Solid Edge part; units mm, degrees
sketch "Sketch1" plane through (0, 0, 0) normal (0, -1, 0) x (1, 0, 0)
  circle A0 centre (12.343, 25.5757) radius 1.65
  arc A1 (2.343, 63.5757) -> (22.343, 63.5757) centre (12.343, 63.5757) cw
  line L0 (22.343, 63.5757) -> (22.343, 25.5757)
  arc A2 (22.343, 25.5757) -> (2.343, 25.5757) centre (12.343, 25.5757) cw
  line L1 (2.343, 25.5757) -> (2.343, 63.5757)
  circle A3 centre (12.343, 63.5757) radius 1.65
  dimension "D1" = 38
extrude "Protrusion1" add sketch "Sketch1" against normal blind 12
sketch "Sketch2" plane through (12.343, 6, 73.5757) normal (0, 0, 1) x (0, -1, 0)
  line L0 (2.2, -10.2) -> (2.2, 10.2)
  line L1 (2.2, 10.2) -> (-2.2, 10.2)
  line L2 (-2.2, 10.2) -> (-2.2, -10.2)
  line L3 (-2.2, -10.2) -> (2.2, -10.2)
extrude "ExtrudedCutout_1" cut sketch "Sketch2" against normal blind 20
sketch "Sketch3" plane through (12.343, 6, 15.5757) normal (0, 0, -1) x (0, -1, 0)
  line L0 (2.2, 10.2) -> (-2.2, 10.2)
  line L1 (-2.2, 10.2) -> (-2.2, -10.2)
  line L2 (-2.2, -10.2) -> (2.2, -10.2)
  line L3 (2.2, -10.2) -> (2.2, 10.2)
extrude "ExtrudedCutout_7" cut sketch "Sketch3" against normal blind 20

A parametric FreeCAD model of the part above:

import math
import FreeCAD as App
import Part
import Sketcher
from FreeCAD import Vector

doc = App.newDocument("Part")
body = doc.addObject("PartDesign::Body", "Body")

sketch1 = body.newObject("Sketcher::SketchObject", "Sketch")
sketch1.AttachmentSupport = (doc.getObject("XZ_Plane"), [""])
sketch1.MapMode = "FlatFace"
sketch1.addGeometry([
    Part.ArcOfCircle(Part.Circle(Vector(12.3, 63.6, 0), Vector(0, 0, 1), 10), math.radians(0), math.radians(180)),
    Part.LineSegment(Vector(2.3, 63.6, 0), Vector(2.3, 25.6, 0)),
    Part.ArcOfCircle(Part.Circle(Vector(12.3, 25.6, 0), Vector(0, 0, 1), 10), math.radians(180), math.radians(360)),
    Part.LineSegment(Vector(22.3, 25.6, 0), Vector(22.3, 63.6, 0)),
    Part.Circle(Vector(12.3, 25.6, 0), Vector(0, 0, 1), 1.6),
    Part.Circle(Vector(12.3, 63.6, 0), Vector(0, 0, 1), 1.6),
], False)
sketch1.addConstraint([
    Sketcher.Constraint("Tangent", 0, 2, 1, 1),
    Sketcher.Constraint("Tangent", 1, 2, 2, 1),
    Sketcher.Constraint("Tangent", 2, 2, 3, 1),
    Sketcher.Constraint("Tangent", 3, 2, 0, 1),
    Sketcher.Constraint("Vertical", 1),
    Sketcher.Constraint("Vertical", 3),
    Sketcher.Constraint("Coincident", 4, 3, 2, 3),
    Sketcher.Constraint("Coincident", 5, 3, 0, 3),
    Sketcher.Constraint("Equal", 4, 5),
    Sketcher.Constraint("Radius", 0, 10.0),
    Sketcher.Constraint("Diameter", 4, 3.3),
    Sketcher.Constraint("DistanceY", 1, 2, 1, 1, 38.0),
    Sketcher.Constraint("DistanceX", -1, 1, 0, 3, 12.343),
    Sketcher.Constraint("DistanceY", -1, 1, 0, 3, 63.5757),
])
pad1 = body.newObject("PartDesign::Pad", "Pad")
pad1.Profile = sketch1
pad1.Length = 12
pad1.Reversed = True

sketch2 = body.newObject("Sketcher::SketchObject", "Sketch001")
sketch2.AttachmentSupport = (doc.getObject("XY_Plane"), [""])
sketch2.MapMode = "FlatFace"
sketch2.AttachmentOffset = App.Placement(Vector(0, 0, 73.5757), App.Rotation())
sketch2.addGeometry([
    Part.LineSegment(Vector(2.1, 8.2, 0), Vector(2.1, 3.8, 0)),
    Part.LineSegment(Vector(2.1, 3.8, 0), Vector(22.5, 3.8, 0)),
    Part.LineSegment(Vector(22.5, 3.8, 0), Vector(22.5, 8.2, 0)),
    Part.LineSegment(Vector(22.5, 8.2, 0), Vector(2.1, 8.2, 0)),
], False)
sketch2.addConstraint([
    Sketcher.Constraint("Coincident", 0, 2, 1, 1),
    Sketcher.Constraint("Coincident", 1, 2, 2, 1),
    Sketcher.Constraint("Coincident", 2, 2, 3, 1),
    Sketcher.Constraint("Coincident", 3, 2, 0, 1),
    Sketcher.Constraint("Vertical", 0),
    Sketcher.Constraint("Horizontal", 1),
    Sketcher.Constraint("Vertical", 2),
    Sketcher.Constraint("Horizontal", 3),
    Sketcher.Constraint("DistanceX", 1, 1, 1, 2, 20.4),
    Sketcher.Constraint("DistanceY", 0, 2, 0, 1, 4.4),
    Sketcher.Constraint("DistanceY", -1, 1, 0, 2, 3.8),
    Sketcher.Constraint("DistanceX", -1, 1, 0, 2, 2.143),
])
pocket1 = body.newObject("PartDesign::Pocket", "Pocket")
pocket1.Profile = sketch2
pocket1.Length = 20

sketch3 = body.newObject("Sketcher::SketchObject", "Sketch002")
sketch3.AttachmentSupport = (doc.getObject("XY_Plane"), [""])
sketch3.MapMode = "FlatFace"
sketch3.AttachmentOffset = App.Placement(Vector(0, 0, 15.5757), App.Rotation())
sketch3.addGeometry([
    Part.LineSegment(Vector(22.5, 3.8, 0), Vector(2.1, 3.8, 0)),
    Part.LineSegment(Vector(2.1, 3.8, 0), Vector(2.1, 8.2, 0)),
    Part.LineSegment(Vector(2.1, 8.2, 0), Vector(22.5, 8.2, 0)),
    Part.LineSegment(Vector(22.5, 8.2, 0), Vector(22.5, 3.8, 0)),
], False)
sketch3.addConstraint([
    Sketcher.Constraint("Coincident", 0, 2, 1, 1),
    Sketcher.Constraint("Coincident", 1, 2, 2, 1),
    Sketcher.Constraint("Coincident", 2, 2, 3, 1),
    Sketcher.Constraint("Coincident", 3, 2, 0, 1),
    Sketcher.Constraint("Horizontal", 0),
    Sketcher.Constraint("Vertical", 1),
    Sketcher.Constraint("Horizontal", 2),
    Sketcher.Constraint("Vertical", 3),
    Sketcher.Constraint("DistanceX", 0, 2, 0, 1, 20.4),
    Sketcher.Constraint("DistanceY", 1, 1, 1, 2, 4.4),
    Sketcher.Constraint("DistanceY", -1, 1, 0, 2, 3.8),
    Sketcher.Constraint("DistanceX", -1, 1, 0, 2, 2.143),
])
pocket2 = body.newObject("PartDesign::Pocket", "Pocket001")
pocket2.Profile = sketch3
pocket2.Length = 20
pocket2.Reversed = True

doc.recompute()
